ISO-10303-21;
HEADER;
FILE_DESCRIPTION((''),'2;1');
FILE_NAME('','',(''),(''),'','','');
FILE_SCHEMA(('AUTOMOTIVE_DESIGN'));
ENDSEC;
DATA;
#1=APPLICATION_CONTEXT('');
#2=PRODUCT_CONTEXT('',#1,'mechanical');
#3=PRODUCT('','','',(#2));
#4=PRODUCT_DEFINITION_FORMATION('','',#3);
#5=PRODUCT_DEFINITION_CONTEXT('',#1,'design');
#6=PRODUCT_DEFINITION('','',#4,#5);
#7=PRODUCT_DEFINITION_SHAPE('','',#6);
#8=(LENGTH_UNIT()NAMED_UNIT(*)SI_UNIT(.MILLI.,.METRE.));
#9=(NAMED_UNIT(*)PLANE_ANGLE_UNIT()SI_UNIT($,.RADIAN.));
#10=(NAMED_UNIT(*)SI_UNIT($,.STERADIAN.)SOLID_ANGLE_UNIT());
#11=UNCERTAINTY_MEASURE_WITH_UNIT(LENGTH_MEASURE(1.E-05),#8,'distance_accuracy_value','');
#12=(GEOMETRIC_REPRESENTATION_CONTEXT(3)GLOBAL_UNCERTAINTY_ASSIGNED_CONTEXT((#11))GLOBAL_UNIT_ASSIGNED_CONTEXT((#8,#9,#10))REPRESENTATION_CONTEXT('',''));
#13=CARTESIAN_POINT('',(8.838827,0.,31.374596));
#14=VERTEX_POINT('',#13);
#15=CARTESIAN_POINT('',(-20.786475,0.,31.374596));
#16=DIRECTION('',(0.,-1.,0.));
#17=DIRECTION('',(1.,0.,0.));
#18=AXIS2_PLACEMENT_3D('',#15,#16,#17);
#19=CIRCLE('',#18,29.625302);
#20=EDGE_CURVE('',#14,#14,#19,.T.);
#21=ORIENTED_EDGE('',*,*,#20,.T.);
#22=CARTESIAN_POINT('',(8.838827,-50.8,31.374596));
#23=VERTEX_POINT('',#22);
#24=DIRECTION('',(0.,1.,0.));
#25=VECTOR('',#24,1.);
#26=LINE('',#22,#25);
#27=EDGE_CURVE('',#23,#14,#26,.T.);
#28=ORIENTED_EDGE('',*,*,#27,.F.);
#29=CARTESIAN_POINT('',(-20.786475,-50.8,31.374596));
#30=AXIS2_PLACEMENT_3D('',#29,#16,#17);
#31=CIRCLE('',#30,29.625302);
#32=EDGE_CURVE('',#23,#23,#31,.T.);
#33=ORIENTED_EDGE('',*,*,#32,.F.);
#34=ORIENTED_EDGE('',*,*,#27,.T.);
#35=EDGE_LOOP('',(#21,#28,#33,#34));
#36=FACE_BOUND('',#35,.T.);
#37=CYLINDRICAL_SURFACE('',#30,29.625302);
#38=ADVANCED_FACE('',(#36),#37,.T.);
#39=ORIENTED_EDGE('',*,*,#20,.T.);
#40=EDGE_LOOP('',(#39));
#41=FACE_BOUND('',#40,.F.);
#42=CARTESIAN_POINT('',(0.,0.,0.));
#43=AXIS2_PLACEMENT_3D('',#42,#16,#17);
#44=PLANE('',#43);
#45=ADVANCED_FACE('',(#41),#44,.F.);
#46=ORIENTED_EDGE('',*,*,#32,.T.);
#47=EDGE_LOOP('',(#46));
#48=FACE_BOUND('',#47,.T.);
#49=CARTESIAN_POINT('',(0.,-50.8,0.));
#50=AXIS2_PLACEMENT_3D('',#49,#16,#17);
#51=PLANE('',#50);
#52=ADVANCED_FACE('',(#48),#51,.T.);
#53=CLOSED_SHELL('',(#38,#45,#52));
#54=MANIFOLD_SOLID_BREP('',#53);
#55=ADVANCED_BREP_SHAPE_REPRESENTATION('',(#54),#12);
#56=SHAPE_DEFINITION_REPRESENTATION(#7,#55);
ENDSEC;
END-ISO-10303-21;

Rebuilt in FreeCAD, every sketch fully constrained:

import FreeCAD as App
import Part
import Sketcher
Q = App.Units.Quantity

doc = App.newDocument("Part")
body = doc.addObject("PartDesign::Body", "Body")

sketch1 = body.newObject("Sketcher::SketchObject", "Sketch")
sketch1.AttachmentSupport = (doc.getObject("XZ_Plane"), [""])
sketch1.MapMode = "FlatFace"
sketch1.addGeometry(Part.Circle(App.Vector(0, 0, 0), App.Vector(0, 0, 1), 82.55), False)
sketch1.addConstraint(Sketcher.Constraint("Coincident", 0, 3, -1, 1))
sketch1.addConstraint(Sketcher.Constraint("Diameter", 0, Q("6.5 in")))
pad1 = body.newObject("PartDesign::Pad", "Pad")
pad1.Profile = sketch1
pad1.Length = Q("2 in")

sketch2 = body.newObject("Sketcher::SketchObject", "Sketch001")
sketch2.AttachmentSupport = (doc.getObject("XZ_Plane"), [""])
sketch2.MapMode = "FlatFace"
sketch2.AttachmentOffset = App.Placement(App.Vector(0, 0, 2 * 25.4), App.Rotation())
sketch2.addGeometry(Part.Circle(App.Vector(0, 0, 0), App.Vector(0, 0, 1), 82.55), False)
sketch2.addGeometry(Part.Circle(App.Vector(-20.786475, 31.374596, 0), App.Vector(0, 0, 1), 29.625302), False)
sketch2.addConstraint(Sketcher.Constraint("Coincident", 0, 3, -1, 1))
sketch2.addConstraint(Sketcher.Constraint("Diameter", 0, Q("6.5 in")))
sketch2.addConstraint(Sketcher.Constraint("Diameter", 1, Q("59.250604 mm")))
sketch2.addConstraint(Sketcher.Constraint("DistanceX", 1, 3, -1, 1, Q("20.786475 mm")))
sketch2.addConstraint(Sketcher.Constraint("DistanceY", -1, 1, 1, 3, Q("31.374596 mm")))
pocket1 = body.newObject("PartDesign::Pocket", "Pocket")
pocket1.Profile = sketch2
pocket1.Length = Q("3 in")

doc.recompute()
